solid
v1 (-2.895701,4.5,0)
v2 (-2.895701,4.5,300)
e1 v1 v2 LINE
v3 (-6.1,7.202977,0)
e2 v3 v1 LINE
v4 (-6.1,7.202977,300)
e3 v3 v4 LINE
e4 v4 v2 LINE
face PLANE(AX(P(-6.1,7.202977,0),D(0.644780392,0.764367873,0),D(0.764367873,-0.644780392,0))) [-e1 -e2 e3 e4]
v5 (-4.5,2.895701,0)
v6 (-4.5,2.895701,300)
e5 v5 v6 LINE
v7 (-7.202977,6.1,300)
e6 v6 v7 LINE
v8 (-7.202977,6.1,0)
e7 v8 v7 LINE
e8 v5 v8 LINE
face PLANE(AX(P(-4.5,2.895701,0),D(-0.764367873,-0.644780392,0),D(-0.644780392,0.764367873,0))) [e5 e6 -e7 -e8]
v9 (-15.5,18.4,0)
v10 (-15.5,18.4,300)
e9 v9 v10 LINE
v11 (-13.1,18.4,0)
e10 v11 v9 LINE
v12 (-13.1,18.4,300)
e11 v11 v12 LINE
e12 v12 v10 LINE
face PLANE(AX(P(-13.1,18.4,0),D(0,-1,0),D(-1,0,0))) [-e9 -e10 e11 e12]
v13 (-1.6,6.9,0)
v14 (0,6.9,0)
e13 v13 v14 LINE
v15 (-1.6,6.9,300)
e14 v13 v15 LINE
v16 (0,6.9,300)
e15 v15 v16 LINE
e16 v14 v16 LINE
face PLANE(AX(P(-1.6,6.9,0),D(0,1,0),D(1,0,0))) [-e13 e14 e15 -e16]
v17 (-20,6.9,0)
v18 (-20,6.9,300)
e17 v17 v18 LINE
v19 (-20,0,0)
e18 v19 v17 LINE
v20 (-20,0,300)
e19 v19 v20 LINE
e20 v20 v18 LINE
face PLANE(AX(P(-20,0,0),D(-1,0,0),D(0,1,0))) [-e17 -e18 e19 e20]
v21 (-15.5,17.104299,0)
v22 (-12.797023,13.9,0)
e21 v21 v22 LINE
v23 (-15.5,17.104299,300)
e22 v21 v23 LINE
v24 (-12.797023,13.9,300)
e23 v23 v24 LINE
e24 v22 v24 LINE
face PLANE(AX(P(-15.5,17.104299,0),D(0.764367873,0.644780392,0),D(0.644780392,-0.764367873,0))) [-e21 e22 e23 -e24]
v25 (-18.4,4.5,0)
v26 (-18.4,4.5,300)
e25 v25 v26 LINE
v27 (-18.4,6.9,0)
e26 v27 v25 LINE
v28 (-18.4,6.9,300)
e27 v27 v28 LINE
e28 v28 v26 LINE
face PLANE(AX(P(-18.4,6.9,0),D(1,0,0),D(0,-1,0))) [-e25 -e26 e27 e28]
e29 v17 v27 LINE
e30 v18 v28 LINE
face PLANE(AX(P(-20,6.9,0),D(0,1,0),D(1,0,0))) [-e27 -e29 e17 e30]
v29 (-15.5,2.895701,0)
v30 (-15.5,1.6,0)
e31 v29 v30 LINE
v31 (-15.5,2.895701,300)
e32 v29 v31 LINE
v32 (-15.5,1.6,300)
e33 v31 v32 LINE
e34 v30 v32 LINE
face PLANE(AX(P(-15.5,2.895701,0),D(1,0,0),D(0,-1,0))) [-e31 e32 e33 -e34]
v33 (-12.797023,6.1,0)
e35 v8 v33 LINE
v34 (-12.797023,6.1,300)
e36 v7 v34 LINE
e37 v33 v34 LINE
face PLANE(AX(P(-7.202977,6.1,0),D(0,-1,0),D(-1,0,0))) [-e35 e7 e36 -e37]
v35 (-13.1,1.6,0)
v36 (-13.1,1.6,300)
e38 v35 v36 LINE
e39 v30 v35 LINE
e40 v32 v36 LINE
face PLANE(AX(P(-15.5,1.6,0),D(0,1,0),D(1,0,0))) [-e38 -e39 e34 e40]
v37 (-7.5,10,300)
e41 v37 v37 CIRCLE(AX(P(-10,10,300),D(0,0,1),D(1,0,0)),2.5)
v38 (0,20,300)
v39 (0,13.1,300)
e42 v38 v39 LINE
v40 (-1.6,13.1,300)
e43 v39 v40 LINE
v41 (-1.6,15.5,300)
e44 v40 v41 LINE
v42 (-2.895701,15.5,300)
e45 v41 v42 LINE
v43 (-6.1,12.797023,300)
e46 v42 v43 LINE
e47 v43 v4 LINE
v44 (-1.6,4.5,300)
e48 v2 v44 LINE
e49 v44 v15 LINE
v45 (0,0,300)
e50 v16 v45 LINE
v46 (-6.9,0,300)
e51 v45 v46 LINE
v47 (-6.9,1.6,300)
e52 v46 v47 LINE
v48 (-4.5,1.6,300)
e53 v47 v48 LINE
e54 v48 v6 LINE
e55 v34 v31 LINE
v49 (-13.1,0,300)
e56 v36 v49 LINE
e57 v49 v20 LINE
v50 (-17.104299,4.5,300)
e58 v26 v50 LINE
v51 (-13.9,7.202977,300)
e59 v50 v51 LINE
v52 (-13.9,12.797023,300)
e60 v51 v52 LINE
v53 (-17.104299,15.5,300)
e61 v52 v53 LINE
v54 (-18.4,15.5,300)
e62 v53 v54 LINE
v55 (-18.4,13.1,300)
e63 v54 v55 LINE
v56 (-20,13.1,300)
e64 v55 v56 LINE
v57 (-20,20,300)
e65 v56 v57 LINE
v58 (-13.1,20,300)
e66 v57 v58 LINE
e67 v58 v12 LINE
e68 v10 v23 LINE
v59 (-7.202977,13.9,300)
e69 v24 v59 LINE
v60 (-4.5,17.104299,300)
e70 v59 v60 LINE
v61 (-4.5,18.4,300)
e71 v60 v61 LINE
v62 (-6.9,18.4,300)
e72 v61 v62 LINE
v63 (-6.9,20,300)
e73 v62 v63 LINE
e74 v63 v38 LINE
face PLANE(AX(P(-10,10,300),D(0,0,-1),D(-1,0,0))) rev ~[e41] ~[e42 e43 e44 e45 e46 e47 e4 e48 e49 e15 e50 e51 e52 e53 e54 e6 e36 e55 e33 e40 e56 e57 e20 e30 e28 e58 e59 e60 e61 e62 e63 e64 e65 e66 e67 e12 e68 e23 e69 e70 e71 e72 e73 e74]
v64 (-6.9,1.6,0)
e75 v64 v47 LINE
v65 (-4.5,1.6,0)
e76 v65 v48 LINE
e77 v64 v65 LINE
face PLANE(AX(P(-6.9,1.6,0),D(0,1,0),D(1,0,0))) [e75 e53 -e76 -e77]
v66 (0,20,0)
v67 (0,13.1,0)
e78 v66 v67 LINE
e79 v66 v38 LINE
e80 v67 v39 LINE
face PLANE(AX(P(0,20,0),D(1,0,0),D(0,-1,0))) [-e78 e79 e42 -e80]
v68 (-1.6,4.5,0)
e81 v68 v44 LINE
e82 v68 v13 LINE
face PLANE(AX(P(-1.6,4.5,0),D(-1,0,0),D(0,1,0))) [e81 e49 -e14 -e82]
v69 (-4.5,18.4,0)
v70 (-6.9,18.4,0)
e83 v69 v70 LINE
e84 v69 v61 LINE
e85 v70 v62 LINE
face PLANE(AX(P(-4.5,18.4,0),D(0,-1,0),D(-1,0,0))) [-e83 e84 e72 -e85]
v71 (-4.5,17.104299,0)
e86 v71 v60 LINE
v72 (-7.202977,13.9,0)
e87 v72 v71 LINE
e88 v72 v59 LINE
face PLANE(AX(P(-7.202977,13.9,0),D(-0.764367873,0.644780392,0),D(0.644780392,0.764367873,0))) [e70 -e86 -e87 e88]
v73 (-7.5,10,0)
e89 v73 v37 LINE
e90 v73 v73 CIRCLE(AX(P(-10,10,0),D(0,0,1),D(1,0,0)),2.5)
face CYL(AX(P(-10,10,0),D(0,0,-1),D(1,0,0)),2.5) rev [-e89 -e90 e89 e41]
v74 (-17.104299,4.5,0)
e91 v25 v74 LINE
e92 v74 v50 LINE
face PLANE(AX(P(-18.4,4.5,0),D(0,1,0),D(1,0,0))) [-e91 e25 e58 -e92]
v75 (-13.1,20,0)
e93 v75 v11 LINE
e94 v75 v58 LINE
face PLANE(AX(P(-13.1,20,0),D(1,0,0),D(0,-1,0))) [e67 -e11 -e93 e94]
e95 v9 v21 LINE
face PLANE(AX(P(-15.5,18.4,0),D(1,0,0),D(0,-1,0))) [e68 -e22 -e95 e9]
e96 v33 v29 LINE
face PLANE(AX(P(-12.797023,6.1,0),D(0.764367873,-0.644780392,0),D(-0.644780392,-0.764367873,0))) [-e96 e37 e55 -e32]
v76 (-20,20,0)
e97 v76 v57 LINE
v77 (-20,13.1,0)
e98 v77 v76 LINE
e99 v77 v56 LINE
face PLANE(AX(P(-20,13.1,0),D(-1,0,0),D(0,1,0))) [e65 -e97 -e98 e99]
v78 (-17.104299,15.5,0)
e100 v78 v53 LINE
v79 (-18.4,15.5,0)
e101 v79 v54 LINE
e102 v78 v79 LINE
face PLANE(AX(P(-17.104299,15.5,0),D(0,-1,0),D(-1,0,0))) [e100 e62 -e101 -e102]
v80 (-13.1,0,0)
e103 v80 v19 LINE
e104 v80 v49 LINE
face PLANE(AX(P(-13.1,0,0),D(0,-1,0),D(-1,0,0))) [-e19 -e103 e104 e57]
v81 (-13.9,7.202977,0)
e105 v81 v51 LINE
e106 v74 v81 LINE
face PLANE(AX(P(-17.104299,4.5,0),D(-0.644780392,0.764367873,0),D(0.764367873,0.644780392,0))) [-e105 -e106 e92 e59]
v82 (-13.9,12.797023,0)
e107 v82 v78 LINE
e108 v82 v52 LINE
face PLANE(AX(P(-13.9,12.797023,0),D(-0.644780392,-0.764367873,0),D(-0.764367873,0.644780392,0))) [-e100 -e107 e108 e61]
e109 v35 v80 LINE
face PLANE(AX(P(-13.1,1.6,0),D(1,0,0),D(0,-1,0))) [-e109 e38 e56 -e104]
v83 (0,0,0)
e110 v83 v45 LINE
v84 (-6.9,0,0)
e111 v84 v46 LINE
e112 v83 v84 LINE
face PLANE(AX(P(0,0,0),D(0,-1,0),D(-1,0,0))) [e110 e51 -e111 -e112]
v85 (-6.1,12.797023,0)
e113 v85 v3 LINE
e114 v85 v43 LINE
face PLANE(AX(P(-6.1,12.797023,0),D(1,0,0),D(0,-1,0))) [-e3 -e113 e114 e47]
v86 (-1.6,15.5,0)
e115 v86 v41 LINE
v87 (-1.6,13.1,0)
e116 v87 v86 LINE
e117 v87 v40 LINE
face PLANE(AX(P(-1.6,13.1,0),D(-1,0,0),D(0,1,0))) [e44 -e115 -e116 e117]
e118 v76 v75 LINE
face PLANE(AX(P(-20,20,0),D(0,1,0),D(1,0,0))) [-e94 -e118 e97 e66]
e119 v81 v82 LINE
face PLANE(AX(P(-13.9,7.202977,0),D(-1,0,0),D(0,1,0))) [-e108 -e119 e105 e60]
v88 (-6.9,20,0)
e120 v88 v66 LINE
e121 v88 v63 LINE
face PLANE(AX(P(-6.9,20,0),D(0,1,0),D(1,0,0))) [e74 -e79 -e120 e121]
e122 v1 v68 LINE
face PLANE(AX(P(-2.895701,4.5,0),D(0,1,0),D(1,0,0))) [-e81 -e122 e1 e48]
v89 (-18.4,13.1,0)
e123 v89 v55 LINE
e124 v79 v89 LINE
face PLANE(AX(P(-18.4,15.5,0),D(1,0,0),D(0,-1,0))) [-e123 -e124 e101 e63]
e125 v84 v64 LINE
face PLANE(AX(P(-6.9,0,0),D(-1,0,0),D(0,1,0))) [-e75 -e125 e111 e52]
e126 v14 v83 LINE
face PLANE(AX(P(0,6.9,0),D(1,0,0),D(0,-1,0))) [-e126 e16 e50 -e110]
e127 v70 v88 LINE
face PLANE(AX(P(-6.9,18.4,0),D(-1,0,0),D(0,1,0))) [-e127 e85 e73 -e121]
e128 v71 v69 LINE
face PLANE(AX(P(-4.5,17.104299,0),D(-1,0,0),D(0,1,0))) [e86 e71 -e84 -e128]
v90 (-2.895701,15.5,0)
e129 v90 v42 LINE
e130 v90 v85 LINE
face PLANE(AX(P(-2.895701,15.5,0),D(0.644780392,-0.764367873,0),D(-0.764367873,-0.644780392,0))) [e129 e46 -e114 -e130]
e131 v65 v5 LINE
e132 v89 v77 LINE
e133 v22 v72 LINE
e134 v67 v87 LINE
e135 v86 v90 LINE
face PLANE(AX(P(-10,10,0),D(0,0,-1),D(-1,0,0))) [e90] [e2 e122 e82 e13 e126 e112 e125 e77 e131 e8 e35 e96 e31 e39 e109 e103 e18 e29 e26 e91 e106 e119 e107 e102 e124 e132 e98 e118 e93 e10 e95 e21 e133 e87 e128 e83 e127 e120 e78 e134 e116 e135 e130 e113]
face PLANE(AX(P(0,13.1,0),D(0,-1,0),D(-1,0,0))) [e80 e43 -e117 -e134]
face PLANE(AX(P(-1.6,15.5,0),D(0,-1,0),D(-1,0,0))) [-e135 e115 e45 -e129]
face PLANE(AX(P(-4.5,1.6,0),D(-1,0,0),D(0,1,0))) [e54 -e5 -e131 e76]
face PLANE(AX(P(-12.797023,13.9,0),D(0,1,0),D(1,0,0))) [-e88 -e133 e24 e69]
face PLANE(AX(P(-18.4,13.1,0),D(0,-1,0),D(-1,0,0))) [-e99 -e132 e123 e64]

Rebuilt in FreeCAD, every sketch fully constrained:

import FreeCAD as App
import Part
import Sketcher
from FreeCAD import Vector
Q = App.Units.Quantity

doc = App.newDocument("Part")
body = doc.addObject("PartDesign::Body", "Body")

# Sketch on XY plane
sketch1 = body.newObject("Sketcher::SketchObject", "Sketch")
sketch1.AttachmentSupport = (doc.getObject("XY_Plane"), [""])
sketch1.MapMode = "FlatFace"
sketch1.addGeometry(Part.LineSegment(Vector(-13.1, 20, 0), Vector(-20, 20, 0)), False)
sketch1.addGeometry(Part.LineSegment(Vector(-20, 20, 0), Vector(-20, 13.1, 0)), False)
sketch1.addGeometry(Part.LineSegment(Vector(-20, 13.1, 0), Vector(-18.4, 13.1, 0)), False)
sketch1.addGeometry(Part.LineSegment(Vector(-18.4, 13.1, 0), Vector(-18.4, 15.5, 0)), False)
sketch1.addGeometry(Part.LineSegment(Vector(-18.4, 15.5, 0), Vector(-17.1, 15.5, 0)), False)
sketch1.addGeometry(Part.LineSegment(Vector(-17.1, 15.5, 0), Vector(-13.9, 12.8, 0)), False)
sketch1.addGeometry(Part.LineSegment(Vector(-13.9, 12.8, 0), Vector(-13.9, 7.2, 0)), False)
sketch1.addGeometry(Part.LineSegment(Vector(-13.9, 7.2, 0), Vector(-17.1, 4.5, 0)), False)
sketch1.addGeometry(Part.LineSegment(Vector(-17.1, 4.5, 0), Vector(-18.4, 4.5, 0)), False)
sketch1.addGeometry(Part.LineSegment(Vector(-18.4, 4.5, 0), Vector(-18.4, 6.9, 0)), False)
sketch1.addGeometry(Part.LineSegment(Vector(-18.4, 6.9, 0), Vector(-20, 6.9, 0)), False)
sketch1.addGeometry(Part.LineSegment(Vector(-20, 6.9, 0), Vector(-20, 0, 0)), False)
sketch1.addGeometry(Part.LineSegment(Vector(-20, 0, 0), Vector(-13.1, 0, 0)), False)
sketch1.addGeometry(Part.LineSegment(Vector(-13.1, 0, 0), Vector(-13.1, 1.6, 0)), False)
sketch1.addGeometry(Part.LineSegment(Vector(-13.1, 1.6, 0), Vector(-15.5, 1.6, 0)), False)
sketch1.addGeometry(Part.LineSegment(Vector(-15.5, 1.6, 0), Vector(-15.5, 2.9, 0)), False)
sketch1.addGeometry(Part.LineSegment(Vector(-15.5, 2.9, 0), Vector(-12.8, 6.1, 0)), False)
sketch1.addGeometry(Part.LineSegment(Vector(-12.8, 6.1, 0), Vector(-7.2, 6.1, 0)), False)
sketch1.addGeometry(Part.LineSegment(Vector(-7.2, 6.1, 0), Vector(-4.5, 2.9, 0)), False)
sketch1.addGeometry(Part.LineSegment(Vector(-4.5, 2.9, 0), Vector(-4.5, 1.6, 0)), False)
sketch1.addGeometry(Part.LineSegment(Vector(-4.5, 1.6, 0), Vector(-6.9, 1.6, 0)), False)
sketch1.addGeometry(Part.LineSegment(Vector(-6.9, 1.6, 0), Vector(-6.9, 0, 0)), False)
sketch1.addGeometry(Part.LineSegment(Vector(-6.9, 0, 0), Vector(0, 0, 0)), False)
sketch1.addGeometry(Part.LineSegment(Vector(0, 0, 0), Vector(0, 6.9, 0)), False)
sketch1.addGeometry(Part.LineSegment(Vector(0, 6.9, 0), Vector(-1.6, 6.9, 0)), False)
sketch1.addGeometry(Part.LineSegment(Vector(-1.6, 6.9, 0), Vector(-1.6, 4.5, 0)), False)
sketch1.addGeometry(Part.LineSegment(Vector(-1.6, 4.5, 0), Vector(-2.9, 4.5, 0)), False)
sketch1.addGeometry(Part.LineSegment(Vector(-2.9, 4.5, 0), Vector(-6.1, 7.2, 0)), False)
sketch1.addGeometry(Part.LineSegment(Vector(-6.1, 7.2, 0), Vector(-6.1, 12.8, 0)), False)
sketch1.addGeometry(Part.LineSegment(Vector(-6.1, 12.8, 0), Vector(-2.9, 15.5, 0)), False)
sketch1.addGeometry(Part.LineSegment(Vector(-2.9, 15.5, 0), Vector(-1.6, 15.5, 0)), False)
sketch1.addGeometry(Part.LineSegment(Vector(-1.6, 15.5, 0), Vector(-1.6, 13.1, 0)), False)
sketch1.addGeometry(Part.LineSegment(Vector(-1.6, 13.1, 0), Vector(0, 13.1, 0)), False)
sketch1.addGeometry(Part.LineSegment(Vector(0, 13.1, 0), Vector(0, 20, 0)), False)
sketch1.addGeometry(Part.LineSegment(Vector(0, 20, 0), Vector(-6.9, 20, 0)), False)
sketch1.addGeometry(Part.LineSegment(Vector(-6.9, 20, 0), Vector(-6.9, 18.4, 0)), False)
sketch1.addGeometry(Part.LineSegment(Vector(-6.9, 18.4, 0), Vector(-4.5, 18.4, 0)), False)
sketch1.addGeometry(Part.LineSegment(Vector(-4.5, 18.4, 0), Vector(-4.5, 17.1, 0)), False)
sketch1.addGeometry(Part.LineSegment(Vector(-4.5, 17.1, 0), Vector(-7.2, 13.9, 0)), False)
sketch1.addGeometry(Part.LineSegment(Vector(-7.2, 13.9, 0), Vector(-12.8, 13.9, 0)), False)
sketch1.addGeometry(Part.LineSegment(Vector(-12.8, 13.9, 0), Vector(-15.5, 17.1, 0)), False)
sketch1.addGeometry(Part.LineSegment(Vector(-15.5, 17.1, 0), Vector(-15.5, 18.4, 0)), False)
sketch1.addGeometry(Part.LineSegment(Vector(-15.5, 18.4, 0), Vector(-13.1, 18.4, 0)), False)
sketch1.addGeometry(Part.LineSegment(Vector(-13.1, 18.4, 0), Vector(-13.1, 20, 0)), False)
sketch1.addGeometry(Part.Circle(Vector(-10, 10, 0), Vector(0, 0, 1), 2.5), False)
sketch1.addConstraint(Sketcher.Constraint("Coincident", 0, 2, 1, 1))
sketch1.addConstraint(Sketcher.Constraint("Coincident", 1, 2, 2, 1))
sketch1.addConstraint(Sketcher.Constraint("Coincident", 2, 2, 3, 1))
sketch1.addConstraint(Sketcher.Constraint("Coincident", 3, 2, 4, 1))
sketch1.addConstraint(Sketcher.Constraint("Coincident", 4, 2, 5, 1))
sketch1.addConstraint(Sketcher.Constraint("Coincident", 5, 2, 6, 1))
sketch1.addConstraint(Sketcher.Constraint("Coincident", 6, 2, 7, 1))
sketch1.addConstraint(Sketcher.Constraint("Coincident", 7, 2, 8, 1))
sketch1.addConstraint(Sketcher.Constraint("Coincident", 8, 2, 9, 1))
sketch1.addConstraint(Sketcher.Constraint("Coincident", 9, 2, 10, 1))
sketch1.addConstraint(Sketcher.Constraint("Coincident", 10, 2, 11, 1))
sketch1.addConstraint(Sketcher.Constraint("Coincident", 11, 2, 12, 1))
sketch1.addConstraint(Sketcher.Constraint("Coincident", 12, 2, 13, 1))
sketch1.addConstraint(Sketcher.Constraint("Coincident", 13, 2, 14, 1))
sketch1.addConstraint(Sketcher.Constraint("Coincident", 14, 2, 15, 1))
sketch1.addConstraint(Sketcher.Constraint("Coincident", 15, 2, 16, 1))
sketch1.addConstraint(Sketcher.Constraint("Coincident", 16, 2, 17, 1))
sketch1.addConstraint(Sketcher.Constraint("Coincident", 17, 2, 18, 1))
sketch1.addConstraint(Sketcher.Constraint("Coincident", 18, 2, 19, 1))
sketch1.addConstraint(Sketcher.Constraint("Coincident", 19, 2, 20, 1))
sketch1.addConstraint(Sketcher.Constraint("Coincident", 20, 2, 21, 1))
sketch1.addConstraint(Sketcher.Constraint("Coincident", 21, 2, 22, 1))
sketch1.addConstraint(Sketcher.Constraint("Coincident", 22, 2, 23, 1))
sketch1.addConstraint(Sketcher.Constraint("Coincident", 23, 2, 24, 1))
sketch1.addConstraint(Sketcher.Constraint("Coincident", 24, 2, 25, 1))
sketch1.addConstraint(Sketcher.Constraint("Coincident", 25, 2, 26, 1))
sketch1.addConstraint(Sketcher.Constraint("Coincident", 26, 2, 27, 1))
sketch1.addConstraint(Sketcher.Constraint("Coincident", 27, 2, 28, 1))
sketch1.addConstraint(Sketcher.Constraint("Coincident", 28, 2, 29, 1))
sketch1.addConstraint(Sketcher.Constraint("Coincident", 29, 2, 30, 1))
sketch1.addConstraint(Sketcher.Constraint("Coincident", 30, 2, 31, 1))
sketch1.addConstraint(Sketcher.Constraint("Coincident", 31, 2, 32, 1))
sketch1.addConstraint(Sketcher.Constraint("Coincident", 32, 2, 33, 1))
sketch1.addConstraint(Sketcher.Constraint("Coincident", 33, 2, 34, 1))
sketch1.addConstraint(Sketcher.Constraint("Coincident", 34, 2, 35, 1))
sketch1.addConstraint(Sketcher.Constraint("Coincident", 35, 2, 36, 1))
sketch1.addConstraint(Sketcher.Constraint("Coincident", 36, 2, 37, 1))
sketch1.addConstraint(Sketcher.Constraint("Coincident", 37, 2, 38, 1))
sketch1.addConstraint(Sketcher.Constraint("Coincident", 38, 2, 39, 1))
sketch1.addConstraint(Sketcher.Constraint("Coincident", 39, 2, 40, 1))
sketch1.addConstraint(Sketcher.Constraint("Coincident", 40, 2, 41, 1))
sketch1.addConstraint(Sketcher.Constraint("Coincident", 41, 2, 42, 1))
sketch1.addConstraint(Sketcher.Constraint("Coincident", 42, 2, 43, 1))
sketch1.addConstraint(Sketcher.Constraint("Coincident", 43, 2, 0, 1))
sketch1.addConstraint(Sketcher.Constraint("Horizontal", 0))
sketch1.addConstraint(Sketcher.Constraint("Vertical", 1))
sketch1.addConstraint(Sketcher.Constraint("Horizontal", 2))
sketch1.addConstraint(Sketcher.Constraint("Vertical", 3))
sketch1.addConstraint(Sketcher.Constraint("Horizontal", 4))
sketch1.addConstraint(Sketcher.Constraint("Vertical", 6))
sketch1.addConstraint(Sketcher.Constraint("Horizontal", 8))
sketch1.addConstraint(Sketcher.Constraint("Vertical", 9))
sketch1.addConstraint(Sketcher.Constraint("Horizontal", 10))
sketch1.addConstraint(Sketcher.Constraint("Vertical", 11))
sketch1.addConstraint(Sketcher.Constraint("Horizontal", 12))
sketch1.addConstraint(Sketcher.Constraint("Vertical", 13))
sketch1.addConstraint(Sketcher.Constraint("Horizontal", 14))
sketch1.addConstraint(Sketcher.Constraint("Vertical", 15))
sketch1.addConstraint(Sketcher.Constraint("Horizontal", 17))
sketch1.addConstraint(Sketcher.Constraint("Vertical", 19))
sketch1.addConstraint(Sketcher.Constraint("Horizontal", 20))
sketch1.addConstraint(Sketcher.Constraint("Vertical", 21))
sketch1.addConstraint(Sketcher.Constraint("Horizontal", 22))
sketch1.addConstraint(Sketcher.Constraint("Vertical", 23))
sketch1.addConstraint(Sketcher.Constraint("Horizontal", 24))
sketch1.addConstraint(Sketcher.Constraint("Vertical", 25))
sketch1.addConstraint(Sketcher.Constraint("Horizontal", 26))
sketch1.addConstraint(Sketcher.Constraint("Vertical", 28))
sketch1.addConstraint(Sketcher.Constraint("Horizontal", 30))
sketch1.addConstraint(Sketcher.Constraint("Vertical", 31))
sketch1.addConstraint(Sketcher.Constraint("Horizontal", 32))
sketch1.addConstraint(Sketcher.Constraint("Vertical", 33))
sketch1.addConstraint(Sketcher.Constraint("Horizontal", 34))
sketch1.addConstraint(Sketcher.Constraint("Vertical", 35))
sketch1.addConstraint(Sketcher.Constraint("Horizontal", 36))
sketch1.addConstraint(Sketcher.Constraint("Vertical", 37))
sketch1.addConstraint(Sketcher.Constraint("Horizontal", 39))
sketch1.addConstraint(Sketcher.Constraint("Vertical", 41))
sketch1.addConstraint(Sketcher.Constraint("Horizontal", 42))
sketch1.addConstraint(Sketcher.Constraint("Vertical", 43))
sketch1.addConstraint(Sketcher.Constraint("Coincident", 22, 2, -1, 1))
sketch1.addConstraint(Sketcher.Constraint("PointOnObject", 11, 2, -1))
sketch1.addConstraint(Sketcher.Constraint("PointOnObject", 32, 2, -2))
sketch1.addConstraint(Sketcher.Constraint("Perpendicular", 5, 16))
sketch1.addConstraint(Sketcher.Constraint("Perpendicular", 7, 18))
sketch1.addConstraint(Sketcher.Constraint("Perpendicular", 16, 27))
sketch1.addConstraint(Sketcher.Constraint("Perpendicular", 18, 29))
sketch1.addConstraint(Sketcher.Constraint("Perpendicular", 27, 38))
sketch1.addConstraint(Sketcher.Constraint("Perpendicular", 29, 40))
sketch1.addConstraint(Sketcher.Constraint("Horizontal", 15, 2, 18, 2))
sketch1.addConstraint(Sketcher.Constraint("Horizontal", 14, 2, 19, 2))
sketch1.addConstraint(Sketcher.Constraint("Horizontal", 10, 2, 23, 2))
sketch1.addConstraint(Sketcher.Constraint("Horizontal", 8, 2, 25, 2))
sketch1.addConstraint(Sketcher.Constraint("Horizontal", 6, 2, 27, 2))
sketch1.addConstraint(Sketcher.Constraint("Horizontal", 5, 2, 28, 2))
sketch1.addConstraint(Sketcher.Constraint("Horizontal", 4, 2, 29, 2))
sketch1.addConstraint(Sketcher.Constraint("Horizontal", 2, 2, 31, 2))
sketch1.addConstraint(Sketcher.Constraint("Horizontal", 0, 2, 33, 2))
sketch1.addConstraint(Sketcher.Constraint("Horizontal", 37, 2, 40, 2))
sketch1.addConstraint(Sketcher.Constraint("Horizontal", 36, 2, 41, 2))
sketch1.addConstraint(Sketcher.Constraint("Vertical", 4, 2, 7, 2))
sketch1.addConstraint(Sketcher.Constraint("Vertical", 3, 2, 8, 2))
sketch1.addConstraint(Sketcher.Constraint("Vertical", 1, 2, 10, 2))
sketch1.addConstraint(Sketcher.Constraint("Vertical", 26, 2, 29, 2))
sketch1.addConstraint(Sketcher.Constraint("Vertical", 25, 2, 30, 2))
sketch1.addConstraint(Sketcher.Constraint("Vertical", 21, 2, 34, 2))
sketch1.addConstraint(Sketcher.Constraint("Vertical", 19, 2, 36, 2))
sketch1.addConstraint(Sketcher.Constraint("Vertical", 17, 2, 38, 2))
sketch1.addConstraint(Sketcher.Constraint("Vertical", 16, 2, 39, 2))
sketch1.addConstraint(Sketcher.Constraint("Vertical", 13, 2, 42, 2))
sketch1.addConstraint(Sketcher.Constraint("Equal", 14, 20))
sketch1.addConstraint(Sketcher.Constraint("Equal", 12, 22))
sketch1.addConstraint(Sketcher.Constraint("Equal", 10, 24))
sketch1.addConstraint(Sketcher.Constraint("Equal", 8, 26))
sketch1.addConstraint(Sketcher.Constraint("Equal", 34, 1))
sketch1.addConstraint(Sketcher.Constraint("Equal", 42, 3))
sketch1.addConstraint(Sketcher.Constraint("Equal", 39, 6))
sketch1.addConstraint(Sketcher.Constraint("Equal", 3, 9))
sketch1.addConstraint(Sketcher.Constraint("Equal", 1, 11))
sketch1.addConstraint(Sketcher.Constraint("Equal", 32, 13))
sketch1.addConstraint(Sketcher.Constraint("Equal", 30, 15))
sketch1.addConstraint(Sketcher.Constraint("Equal", 21, 35))
sketch1.addConstraint(Sketcher.Constraint("Equal", 19, 37))
sketch1.addConstraint(Sketcher.Constraint("Equal", 7, 16))
sketch1.addConstraint(Sketcher.Constraint("Diameter", 44, Q("5 mm")))
sketch1.addConstraint(Sketcher.Constraint("DistanceX", 0, 2, 0, 1, Q("6.9 mm")))
sketch1.addConstraint(Sketcher.Constraint("DistanceX", 2, 1, 2, 2, Q("1.6 mm")))
sketch1.addConstraint(Sketcher.Constraint("DistanceX", 14, 2, 14, 1, Q("2.4 mm")))
sketch1.addConstraint(Sketcher.Constraint("DistanceX", 44, 3, -1, 1, Q("10 mm")))
sketch1.addConstraint(Sketcher.Constraint("DistanceY", -1, 1, 44, 3, Q("10 mm")))
sketch1.addConstraint(Sketcher.Constraint("DistanceX", 0, 2, -1, 1, Q("20 mm")))
sketch1.addConstraint(Sketcher.Constraint("DistanceX", 5, 2, -1, 1, Q("13.9 mm")))
sketch1.addConstraint(Sketcher.Constraint("DistanceX", 4, 1, 4, 2, Q("1.295701 mm")))
sketch1.addConstraint(Sketcher.Constraint("Distance", 5, Q("4.19209 mm")))
pad1 = body.newObject("PartDesign::Pad", "Pad")
pad1.Profile = sketch1
pad1.Length = 300

doc.recompute()
